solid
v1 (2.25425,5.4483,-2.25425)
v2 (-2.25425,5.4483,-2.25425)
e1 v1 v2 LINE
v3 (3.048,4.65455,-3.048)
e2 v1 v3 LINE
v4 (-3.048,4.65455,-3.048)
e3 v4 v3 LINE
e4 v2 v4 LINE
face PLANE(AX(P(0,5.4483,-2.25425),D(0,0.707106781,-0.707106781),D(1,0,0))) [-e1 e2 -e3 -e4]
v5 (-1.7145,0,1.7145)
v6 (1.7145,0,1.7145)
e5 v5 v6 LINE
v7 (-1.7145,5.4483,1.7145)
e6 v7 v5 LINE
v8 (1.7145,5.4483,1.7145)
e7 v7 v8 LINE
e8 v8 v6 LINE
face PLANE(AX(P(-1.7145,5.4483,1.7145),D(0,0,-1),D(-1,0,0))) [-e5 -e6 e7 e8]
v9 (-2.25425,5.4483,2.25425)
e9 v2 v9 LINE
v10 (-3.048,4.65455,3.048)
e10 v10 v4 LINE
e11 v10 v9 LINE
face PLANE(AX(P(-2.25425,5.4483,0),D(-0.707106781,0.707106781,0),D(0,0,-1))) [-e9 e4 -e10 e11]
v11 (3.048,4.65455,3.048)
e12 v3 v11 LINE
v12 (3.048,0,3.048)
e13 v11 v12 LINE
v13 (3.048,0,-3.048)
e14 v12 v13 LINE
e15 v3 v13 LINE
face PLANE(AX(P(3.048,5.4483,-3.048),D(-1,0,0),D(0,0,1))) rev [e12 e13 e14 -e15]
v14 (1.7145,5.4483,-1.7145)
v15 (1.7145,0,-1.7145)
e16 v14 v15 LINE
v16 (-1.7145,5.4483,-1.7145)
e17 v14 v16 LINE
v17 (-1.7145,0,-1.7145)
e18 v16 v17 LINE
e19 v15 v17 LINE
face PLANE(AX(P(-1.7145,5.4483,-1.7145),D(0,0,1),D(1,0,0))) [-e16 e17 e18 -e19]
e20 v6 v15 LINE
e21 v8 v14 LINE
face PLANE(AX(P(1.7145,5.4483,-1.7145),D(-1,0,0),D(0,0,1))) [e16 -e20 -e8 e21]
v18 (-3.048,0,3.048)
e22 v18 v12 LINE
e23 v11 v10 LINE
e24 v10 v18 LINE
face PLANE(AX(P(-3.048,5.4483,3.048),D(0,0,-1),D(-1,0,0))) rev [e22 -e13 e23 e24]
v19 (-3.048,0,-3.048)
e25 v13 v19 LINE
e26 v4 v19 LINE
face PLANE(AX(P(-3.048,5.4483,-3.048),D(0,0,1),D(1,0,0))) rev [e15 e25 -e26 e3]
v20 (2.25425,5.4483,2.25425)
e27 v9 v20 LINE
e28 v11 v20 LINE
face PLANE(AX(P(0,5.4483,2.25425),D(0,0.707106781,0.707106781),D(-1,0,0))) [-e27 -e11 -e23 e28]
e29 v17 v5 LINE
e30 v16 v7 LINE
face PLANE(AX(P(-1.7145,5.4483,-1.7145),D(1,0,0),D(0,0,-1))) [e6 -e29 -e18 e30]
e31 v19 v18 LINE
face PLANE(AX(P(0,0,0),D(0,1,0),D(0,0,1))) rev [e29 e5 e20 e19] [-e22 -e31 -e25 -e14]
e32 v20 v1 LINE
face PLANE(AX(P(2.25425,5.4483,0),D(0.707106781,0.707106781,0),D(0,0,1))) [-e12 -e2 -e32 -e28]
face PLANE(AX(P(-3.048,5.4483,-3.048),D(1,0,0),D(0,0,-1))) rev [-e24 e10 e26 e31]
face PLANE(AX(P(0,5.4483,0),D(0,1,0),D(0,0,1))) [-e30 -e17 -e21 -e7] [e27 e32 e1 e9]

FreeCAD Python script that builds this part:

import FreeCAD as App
import Part
import Sketcher

V = App.Vector
Q = App.Units.Quantity


def edges_at(feature, points):
    """Names of the edges that pass closest to the given points."""
    edges = feature.Shape.Edges
    near = lambda p: min(range(len(edges)), key=lambda i: edges[i].distToShape(Part.Vertex(*p))[0])
    return sorted({f"Edge{near(p) + 1}" for p in points})

doc = App.newDocument("Part")
params = doc.addObject("Spreadsheet::Sheet", "Params")
for row, (alias, value) in enumerate([
    ("sketch1_width", "0.24 in"),
    ("sketch1_width2", "0.135 in"),
    ("pad1_length", "0.2145 in"),
    ("chamfer_size", "0.03125 in"),
], start=1):
    params.set(f"A{row}", alias)
    params.set(f"B{row}", "=" + value)
    params.setAlias(f"B{row}", alias)

body = doc.addObject("PartDesign::Body", "Body")

sketch1 = body.newObject("Sketcher::SketchObject", "Sketch")
sketch1.AttachmentSupport = (doc.getObject("XZ_Plane"), [""])
sketch1.MapMode = "FlatFace"
sketch1.addGeometry([
    Part.LineSegment(V(-3, -3, 0), V(-3, 3, 0)),
    Part.LineSegment(V(-3, 3, 0), V(3, 3, 0)),
    Part.LineSegment(V(3, 3, 0), V(3, -3, 0)),
    Part.LineSegment(V(3, -3, 0), V(-3, -3, 0)),
    Part.LineSegment(V(1.7, 1.7, 0), V(-1.7, 1.7, 0)),
    Part.LineSegment(V(-1.7, 1.7, 0), V(-1.7, -1.7, 0)),
    Part.LineSegment(V(-1.7, -1.7, 0), V(1.7, -1.7, 0)),
    Part.LineSegment(V(1.7, -1.7, 0), V(1.7, 1.7, 0)),
], False)
sketch1.addConstraint([
    Sketcher.Constraint("Coincident", 0, 2, 1, 1),
    Sketcher.Constraint("Coincident", 1, 2, 2, 1),
    Sketcher.Constraint("Coincident", 2, 2, 3, 1),
    Sketcher.Constraint("Coincident", 3, 2, 0, 1),
    Sketcher.Constraint("Coincident", 4, 2, 5, 1),
    Sketcher.Constraint("Coincident", 5, 2, 6, 1),
    Sketcher.Constraint("Coincident", 6, 2, 7, 1),
    Sketcher.Constraint("Coincident", 7, 2, 4, 1),
    Sketcher.Constraint("Vertical", 0),
    Sketcher.Constraint("Horizontal", 1),
    Sketcher.Constraint("Vertical", 2),
    Sketcher.Constraint("Horizontal", 3),
    Sketcher.Constraint("Horizontal", 4),
    Sketcher.Constraint("Vertical", 5),
    Sketcher.Constraint("Horizontal", 6),
    Sketcher.Constraint("Vertical", 7),
    Sketcher.Constraint("Symmetric", 0, 2, 2, 2, -1, 1),
    Sketcher.Constraint("Symmetric", 4, 2, 6, 2, -1, 1),
    Sketcher.Constraint("Equal", 3, 0),
    Sketcher.Constraint("Equal", 6, 5),
    Sketcher.Constraint("DistanceX", 1, 1, 1, 2, Q("0.24 in")),
    Sketcher.Constraint("DistanceX", 4, 2, 4, 1, Q("0.135 in")),
])
sketch1.setExpression("Constraints[20]", "Params.sketch1_width")
sketch1.setExpression("Constraints[21]", "Params.sketch1_width2")
pad1 = body.newObject("PartDesign::Pad", "Pad")
pad1.Profile = sketch1
pad1.setExpression("Length", "Params.pad1_length")
pad1.Reversed = True
doc.recompute()

chamfer = body.newObject("PartDesign::Chamfer", "Chamfer")
chamfer.Base = (pad1, edges_at(pad1, [
    (-3.048, 5.448, 0),
    (0, 5.448, 3.048),
    (3.048, 5.448, 0),
    (0, 5.448, -3.048),
]))
chamfer.setExpression("Size", "Params.chamfer_size")

doc.recompute()
